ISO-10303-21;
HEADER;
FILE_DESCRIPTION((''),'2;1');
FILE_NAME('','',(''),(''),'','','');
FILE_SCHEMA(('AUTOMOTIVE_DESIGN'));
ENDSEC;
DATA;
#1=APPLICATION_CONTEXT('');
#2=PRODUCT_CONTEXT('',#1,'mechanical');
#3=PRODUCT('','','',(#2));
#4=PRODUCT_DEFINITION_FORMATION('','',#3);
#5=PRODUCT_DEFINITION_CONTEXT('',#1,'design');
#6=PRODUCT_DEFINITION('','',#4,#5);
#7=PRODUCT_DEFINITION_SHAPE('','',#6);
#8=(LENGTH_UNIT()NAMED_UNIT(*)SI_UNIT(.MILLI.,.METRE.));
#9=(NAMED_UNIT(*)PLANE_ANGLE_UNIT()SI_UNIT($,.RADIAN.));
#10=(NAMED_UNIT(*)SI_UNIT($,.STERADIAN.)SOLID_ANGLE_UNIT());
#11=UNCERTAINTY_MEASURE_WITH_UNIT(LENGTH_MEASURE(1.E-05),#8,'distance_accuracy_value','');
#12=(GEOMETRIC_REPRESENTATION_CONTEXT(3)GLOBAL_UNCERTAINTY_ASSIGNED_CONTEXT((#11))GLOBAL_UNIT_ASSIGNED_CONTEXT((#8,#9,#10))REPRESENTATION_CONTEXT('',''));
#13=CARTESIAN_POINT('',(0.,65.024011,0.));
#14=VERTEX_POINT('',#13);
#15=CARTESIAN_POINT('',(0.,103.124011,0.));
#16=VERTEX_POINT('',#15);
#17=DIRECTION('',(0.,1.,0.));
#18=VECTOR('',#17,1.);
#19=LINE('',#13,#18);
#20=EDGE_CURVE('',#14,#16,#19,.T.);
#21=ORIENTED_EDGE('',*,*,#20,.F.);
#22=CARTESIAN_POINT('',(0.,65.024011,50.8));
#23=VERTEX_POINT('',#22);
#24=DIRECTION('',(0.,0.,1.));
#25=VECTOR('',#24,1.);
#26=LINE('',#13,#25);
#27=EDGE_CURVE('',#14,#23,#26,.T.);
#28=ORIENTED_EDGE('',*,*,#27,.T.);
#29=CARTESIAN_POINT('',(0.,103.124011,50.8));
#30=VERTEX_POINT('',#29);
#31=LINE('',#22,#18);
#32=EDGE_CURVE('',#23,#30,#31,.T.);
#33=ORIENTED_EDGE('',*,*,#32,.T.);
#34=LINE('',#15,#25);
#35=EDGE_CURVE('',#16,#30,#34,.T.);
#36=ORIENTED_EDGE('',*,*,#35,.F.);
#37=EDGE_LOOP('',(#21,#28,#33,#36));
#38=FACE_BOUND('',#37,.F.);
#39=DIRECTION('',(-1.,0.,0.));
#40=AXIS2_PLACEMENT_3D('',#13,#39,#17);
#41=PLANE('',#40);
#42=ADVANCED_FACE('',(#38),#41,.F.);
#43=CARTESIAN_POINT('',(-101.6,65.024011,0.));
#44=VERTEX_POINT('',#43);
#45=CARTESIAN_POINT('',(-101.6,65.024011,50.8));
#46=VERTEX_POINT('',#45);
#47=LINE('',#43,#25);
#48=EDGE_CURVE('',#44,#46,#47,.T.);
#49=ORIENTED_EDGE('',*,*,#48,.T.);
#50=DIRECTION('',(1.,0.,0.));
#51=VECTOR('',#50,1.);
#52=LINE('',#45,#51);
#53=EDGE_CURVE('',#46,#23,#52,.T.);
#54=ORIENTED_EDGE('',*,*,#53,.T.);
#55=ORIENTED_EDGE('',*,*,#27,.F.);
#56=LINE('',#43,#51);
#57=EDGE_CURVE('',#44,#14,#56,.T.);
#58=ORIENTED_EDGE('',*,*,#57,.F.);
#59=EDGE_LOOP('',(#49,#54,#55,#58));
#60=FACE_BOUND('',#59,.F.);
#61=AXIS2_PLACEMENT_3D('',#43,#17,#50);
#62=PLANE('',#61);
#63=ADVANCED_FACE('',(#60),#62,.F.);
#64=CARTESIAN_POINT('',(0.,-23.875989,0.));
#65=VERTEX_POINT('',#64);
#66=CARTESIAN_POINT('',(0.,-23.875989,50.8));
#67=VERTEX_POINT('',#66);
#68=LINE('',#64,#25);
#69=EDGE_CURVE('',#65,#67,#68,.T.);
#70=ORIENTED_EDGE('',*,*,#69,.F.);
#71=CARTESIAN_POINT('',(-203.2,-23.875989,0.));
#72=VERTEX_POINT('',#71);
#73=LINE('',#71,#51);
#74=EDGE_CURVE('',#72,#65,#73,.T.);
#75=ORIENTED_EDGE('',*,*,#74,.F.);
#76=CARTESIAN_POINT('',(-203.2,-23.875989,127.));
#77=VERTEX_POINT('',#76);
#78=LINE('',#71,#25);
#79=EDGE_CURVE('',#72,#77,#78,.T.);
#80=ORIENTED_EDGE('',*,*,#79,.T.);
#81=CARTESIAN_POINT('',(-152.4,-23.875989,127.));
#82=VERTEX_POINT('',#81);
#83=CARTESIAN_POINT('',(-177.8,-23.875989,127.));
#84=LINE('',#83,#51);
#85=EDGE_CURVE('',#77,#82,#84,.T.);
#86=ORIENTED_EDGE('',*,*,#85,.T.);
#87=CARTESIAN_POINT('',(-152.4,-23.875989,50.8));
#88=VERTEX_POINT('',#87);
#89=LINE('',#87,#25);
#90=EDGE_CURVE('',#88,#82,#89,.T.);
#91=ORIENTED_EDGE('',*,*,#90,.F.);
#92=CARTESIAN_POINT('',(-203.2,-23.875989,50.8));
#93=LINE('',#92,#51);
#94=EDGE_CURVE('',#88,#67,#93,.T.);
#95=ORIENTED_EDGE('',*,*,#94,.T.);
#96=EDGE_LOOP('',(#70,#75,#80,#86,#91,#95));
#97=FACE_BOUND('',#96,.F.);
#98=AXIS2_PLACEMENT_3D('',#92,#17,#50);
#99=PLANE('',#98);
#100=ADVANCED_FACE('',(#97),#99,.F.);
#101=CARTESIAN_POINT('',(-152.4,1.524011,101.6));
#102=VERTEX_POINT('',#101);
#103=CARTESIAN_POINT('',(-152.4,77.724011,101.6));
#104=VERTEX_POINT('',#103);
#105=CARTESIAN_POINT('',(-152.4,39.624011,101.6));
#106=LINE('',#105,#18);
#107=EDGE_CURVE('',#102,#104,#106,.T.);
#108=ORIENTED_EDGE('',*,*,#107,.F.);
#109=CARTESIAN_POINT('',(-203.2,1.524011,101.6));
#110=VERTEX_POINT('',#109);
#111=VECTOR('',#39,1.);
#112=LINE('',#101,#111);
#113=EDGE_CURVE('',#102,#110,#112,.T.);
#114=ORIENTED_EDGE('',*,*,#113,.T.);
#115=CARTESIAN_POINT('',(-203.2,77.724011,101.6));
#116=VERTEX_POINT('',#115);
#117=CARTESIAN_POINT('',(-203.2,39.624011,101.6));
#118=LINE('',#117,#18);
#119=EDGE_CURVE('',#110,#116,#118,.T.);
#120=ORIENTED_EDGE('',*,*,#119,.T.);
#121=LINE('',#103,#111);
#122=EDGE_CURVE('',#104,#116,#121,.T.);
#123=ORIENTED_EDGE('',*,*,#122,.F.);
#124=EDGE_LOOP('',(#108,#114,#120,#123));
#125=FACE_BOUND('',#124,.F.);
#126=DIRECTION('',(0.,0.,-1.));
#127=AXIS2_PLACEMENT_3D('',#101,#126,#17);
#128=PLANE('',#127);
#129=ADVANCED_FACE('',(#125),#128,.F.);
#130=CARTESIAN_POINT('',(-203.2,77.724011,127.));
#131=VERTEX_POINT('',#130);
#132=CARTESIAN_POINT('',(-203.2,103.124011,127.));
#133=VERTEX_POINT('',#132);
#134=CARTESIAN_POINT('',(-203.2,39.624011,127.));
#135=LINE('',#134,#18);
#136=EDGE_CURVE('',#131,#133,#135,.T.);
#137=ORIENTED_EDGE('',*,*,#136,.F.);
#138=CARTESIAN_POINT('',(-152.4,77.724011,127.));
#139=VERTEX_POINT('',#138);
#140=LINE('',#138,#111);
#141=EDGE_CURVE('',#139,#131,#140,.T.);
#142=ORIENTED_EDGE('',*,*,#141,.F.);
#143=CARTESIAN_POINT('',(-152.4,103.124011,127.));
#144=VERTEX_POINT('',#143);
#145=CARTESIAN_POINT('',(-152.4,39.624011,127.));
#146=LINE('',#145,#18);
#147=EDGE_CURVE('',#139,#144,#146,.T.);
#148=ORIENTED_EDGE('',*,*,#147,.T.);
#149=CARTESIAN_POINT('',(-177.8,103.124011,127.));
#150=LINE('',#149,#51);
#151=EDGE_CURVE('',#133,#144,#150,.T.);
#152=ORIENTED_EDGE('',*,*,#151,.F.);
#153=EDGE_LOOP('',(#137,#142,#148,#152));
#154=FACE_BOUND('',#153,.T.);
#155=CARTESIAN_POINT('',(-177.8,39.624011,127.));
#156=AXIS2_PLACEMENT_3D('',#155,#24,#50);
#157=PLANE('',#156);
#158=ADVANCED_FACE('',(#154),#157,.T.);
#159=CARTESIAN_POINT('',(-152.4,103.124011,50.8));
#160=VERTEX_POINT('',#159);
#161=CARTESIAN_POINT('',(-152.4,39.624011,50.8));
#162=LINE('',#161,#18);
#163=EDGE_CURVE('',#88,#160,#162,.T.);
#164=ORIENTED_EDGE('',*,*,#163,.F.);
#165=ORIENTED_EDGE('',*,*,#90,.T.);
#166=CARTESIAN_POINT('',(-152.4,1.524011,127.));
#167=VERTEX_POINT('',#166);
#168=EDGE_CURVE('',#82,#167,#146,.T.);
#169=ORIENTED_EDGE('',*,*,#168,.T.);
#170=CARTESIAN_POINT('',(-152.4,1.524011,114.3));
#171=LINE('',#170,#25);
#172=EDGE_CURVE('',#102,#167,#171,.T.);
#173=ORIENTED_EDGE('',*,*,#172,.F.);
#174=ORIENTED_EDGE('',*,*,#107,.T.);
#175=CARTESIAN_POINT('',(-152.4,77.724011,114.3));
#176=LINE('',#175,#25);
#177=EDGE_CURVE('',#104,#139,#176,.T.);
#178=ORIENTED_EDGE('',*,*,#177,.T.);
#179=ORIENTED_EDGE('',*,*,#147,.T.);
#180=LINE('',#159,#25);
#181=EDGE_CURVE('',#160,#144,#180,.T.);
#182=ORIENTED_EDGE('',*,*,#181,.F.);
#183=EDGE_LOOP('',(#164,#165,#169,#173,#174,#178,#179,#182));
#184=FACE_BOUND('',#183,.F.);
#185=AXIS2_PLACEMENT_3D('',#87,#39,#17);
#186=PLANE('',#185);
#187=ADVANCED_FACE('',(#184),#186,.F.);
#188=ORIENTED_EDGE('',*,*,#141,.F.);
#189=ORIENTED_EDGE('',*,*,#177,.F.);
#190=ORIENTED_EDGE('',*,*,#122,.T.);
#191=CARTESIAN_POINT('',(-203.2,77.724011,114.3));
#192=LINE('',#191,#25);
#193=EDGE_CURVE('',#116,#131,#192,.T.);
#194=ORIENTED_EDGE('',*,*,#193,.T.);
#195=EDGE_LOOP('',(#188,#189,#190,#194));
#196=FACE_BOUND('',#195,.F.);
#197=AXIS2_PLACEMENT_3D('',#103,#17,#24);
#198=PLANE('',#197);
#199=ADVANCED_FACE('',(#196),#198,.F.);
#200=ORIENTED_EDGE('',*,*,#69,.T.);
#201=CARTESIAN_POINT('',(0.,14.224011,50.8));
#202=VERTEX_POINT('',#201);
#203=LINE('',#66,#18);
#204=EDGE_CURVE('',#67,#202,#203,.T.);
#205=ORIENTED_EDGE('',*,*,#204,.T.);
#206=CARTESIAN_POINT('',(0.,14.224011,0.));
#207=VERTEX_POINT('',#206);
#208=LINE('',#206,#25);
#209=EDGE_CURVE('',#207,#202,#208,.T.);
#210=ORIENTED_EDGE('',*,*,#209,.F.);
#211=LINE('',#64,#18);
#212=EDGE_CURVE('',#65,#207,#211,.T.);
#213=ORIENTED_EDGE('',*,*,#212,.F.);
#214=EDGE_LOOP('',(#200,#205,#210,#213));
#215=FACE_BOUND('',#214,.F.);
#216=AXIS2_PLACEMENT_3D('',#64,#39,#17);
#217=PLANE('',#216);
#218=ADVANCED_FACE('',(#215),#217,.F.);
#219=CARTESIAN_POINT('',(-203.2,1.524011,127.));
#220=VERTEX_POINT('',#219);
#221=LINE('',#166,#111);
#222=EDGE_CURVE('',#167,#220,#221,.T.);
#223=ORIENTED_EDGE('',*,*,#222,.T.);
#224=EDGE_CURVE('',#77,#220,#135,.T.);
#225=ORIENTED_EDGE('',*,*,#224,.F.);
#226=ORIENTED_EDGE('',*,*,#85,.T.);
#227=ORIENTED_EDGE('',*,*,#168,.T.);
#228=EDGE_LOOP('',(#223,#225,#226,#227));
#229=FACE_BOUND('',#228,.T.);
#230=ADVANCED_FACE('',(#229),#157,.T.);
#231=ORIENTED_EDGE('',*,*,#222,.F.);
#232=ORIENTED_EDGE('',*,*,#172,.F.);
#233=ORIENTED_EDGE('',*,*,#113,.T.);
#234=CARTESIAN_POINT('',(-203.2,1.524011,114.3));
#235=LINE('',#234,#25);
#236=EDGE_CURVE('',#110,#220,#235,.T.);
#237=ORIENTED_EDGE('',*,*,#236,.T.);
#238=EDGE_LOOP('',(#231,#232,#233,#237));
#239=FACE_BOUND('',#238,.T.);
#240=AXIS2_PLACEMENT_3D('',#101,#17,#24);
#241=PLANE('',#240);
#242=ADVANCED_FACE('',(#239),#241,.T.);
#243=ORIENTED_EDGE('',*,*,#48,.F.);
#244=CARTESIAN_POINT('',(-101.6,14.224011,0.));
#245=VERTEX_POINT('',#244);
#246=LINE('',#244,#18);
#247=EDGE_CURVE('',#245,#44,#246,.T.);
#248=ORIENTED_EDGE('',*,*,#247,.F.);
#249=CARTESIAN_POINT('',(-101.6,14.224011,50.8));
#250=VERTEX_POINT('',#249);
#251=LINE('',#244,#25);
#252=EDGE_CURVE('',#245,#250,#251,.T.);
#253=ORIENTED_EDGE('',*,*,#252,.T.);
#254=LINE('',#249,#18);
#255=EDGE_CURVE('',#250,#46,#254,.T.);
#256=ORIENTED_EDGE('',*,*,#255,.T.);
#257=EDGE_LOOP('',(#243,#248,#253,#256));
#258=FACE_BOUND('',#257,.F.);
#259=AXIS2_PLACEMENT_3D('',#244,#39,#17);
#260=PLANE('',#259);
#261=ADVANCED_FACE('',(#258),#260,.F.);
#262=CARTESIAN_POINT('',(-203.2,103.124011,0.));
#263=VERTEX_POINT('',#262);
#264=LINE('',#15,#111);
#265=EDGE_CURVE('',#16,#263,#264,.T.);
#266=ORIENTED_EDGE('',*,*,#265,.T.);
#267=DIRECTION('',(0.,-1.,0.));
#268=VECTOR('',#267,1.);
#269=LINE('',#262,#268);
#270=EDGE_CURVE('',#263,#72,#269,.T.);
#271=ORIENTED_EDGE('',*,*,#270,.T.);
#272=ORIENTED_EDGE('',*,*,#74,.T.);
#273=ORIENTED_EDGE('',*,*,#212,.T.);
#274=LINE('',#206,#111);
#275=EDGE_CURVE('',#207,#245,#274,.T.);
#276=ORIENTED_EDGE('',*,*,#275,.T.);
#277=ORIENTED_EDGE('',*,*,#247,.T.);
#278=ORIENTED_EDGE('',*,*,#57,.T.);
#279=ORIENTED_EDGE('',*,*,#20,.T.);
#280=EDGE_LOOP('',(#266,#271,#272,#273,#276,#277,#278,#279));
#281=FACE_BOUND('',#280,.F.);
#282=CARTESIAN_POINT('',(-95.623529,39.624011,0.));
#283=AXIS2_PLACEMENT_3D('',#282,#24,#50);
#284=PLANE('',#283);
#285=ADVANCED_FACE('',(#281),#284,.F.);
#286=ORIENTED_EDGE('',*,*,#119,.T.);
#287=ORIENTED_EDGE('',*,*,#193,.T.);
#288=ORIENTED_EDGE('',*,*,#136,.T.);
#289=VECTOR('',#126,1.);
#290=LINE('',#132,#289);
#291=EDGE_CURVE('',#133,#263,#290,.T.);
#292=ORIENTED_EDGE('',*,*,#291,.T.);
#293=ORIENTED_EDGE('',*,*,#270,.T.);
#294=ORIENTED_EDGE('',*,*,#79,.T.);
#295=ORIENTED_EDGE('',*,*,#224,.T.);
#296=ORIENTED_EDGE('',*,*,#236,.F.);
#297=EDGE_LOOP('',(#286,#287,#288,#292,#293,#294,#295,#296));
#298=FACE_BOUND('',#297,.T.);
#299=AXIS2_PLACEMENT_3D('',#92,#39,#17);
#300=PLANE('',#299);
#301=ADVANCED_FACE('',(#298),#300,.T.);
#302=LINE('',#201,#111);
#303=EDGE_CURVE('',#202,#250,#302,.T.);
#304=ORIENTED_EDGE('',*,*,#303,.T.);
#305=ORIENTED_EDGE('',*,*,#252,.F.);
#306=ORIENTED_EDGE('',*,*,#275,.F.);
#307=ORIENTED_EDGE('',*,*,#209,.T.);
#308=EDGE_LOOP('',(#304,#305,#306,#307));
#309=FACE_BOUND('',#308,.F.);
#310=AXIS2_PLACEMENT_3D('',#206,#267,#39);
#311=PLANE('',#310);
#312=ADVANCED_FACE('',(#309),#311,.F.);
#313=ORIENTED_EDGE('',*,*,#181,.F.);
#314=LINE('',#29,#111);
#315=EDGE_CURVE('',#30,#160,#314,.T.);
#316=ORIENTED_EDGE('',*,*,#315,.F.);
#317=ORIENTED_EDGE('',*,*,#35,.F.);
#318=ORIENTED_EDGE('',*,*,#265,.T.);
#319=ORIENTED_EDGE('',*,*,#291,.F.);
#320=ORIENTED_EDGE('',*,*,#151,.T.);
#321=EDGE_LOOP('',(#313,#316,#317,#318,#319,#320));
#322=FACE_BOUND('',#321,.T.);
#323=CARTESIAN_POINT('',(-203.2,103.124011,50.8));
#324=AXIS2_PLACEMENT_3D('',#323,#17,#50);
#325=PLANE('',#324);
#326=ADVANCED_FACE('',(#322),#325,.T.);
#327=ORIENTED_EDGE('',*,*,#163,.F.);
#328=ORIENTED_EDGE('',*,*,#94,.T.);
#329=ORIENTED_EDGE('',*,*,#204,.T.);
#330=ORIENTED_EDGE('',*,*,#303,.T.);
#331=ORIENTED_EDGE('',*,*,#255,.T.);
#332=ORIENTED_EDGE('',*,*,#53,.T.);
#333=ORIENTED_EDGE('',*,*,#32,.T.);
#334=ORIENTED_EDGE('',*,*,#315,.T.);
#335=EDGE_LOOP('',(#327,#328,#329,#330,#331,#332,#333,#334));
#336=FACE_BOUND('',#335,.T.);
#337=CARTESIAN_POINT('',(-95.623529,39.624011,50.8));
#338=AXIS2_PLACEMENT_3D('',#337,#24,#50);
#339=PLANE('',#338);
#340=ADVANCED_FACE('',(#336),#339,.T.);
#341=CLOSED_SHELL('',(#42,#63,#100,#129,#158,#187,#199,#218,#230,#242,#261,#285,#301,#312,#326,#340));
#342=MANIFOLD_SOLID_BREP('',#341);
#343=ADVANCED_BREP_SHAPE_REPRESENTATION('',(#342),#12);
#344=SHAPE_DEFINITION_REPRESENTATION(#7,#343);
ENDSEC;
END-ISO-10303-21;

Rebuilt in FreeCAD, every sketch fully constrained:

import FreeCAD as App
import Part
import Sketcher
Q = App.Units.Quantity


def add_polygon(sketch, points):
    """Adds a closed chain of lines whose ends are joined by coincident constraints."""
    first, n = sketch.GeometryCount, len(points)
    for a, b in zip(points, points[1:] + points[:1]):
        sketch.addGeometry(Part.LineSegment(App.Vector(*a, 0), App.Vector(*b, 0)), False)
    for i in range(n):
        sketch.addConstraint(Sketcher.Constraint("Coincident", first + i, 2, first + (i + 1) % n, 1))

doc = App.newDocument("Part")
body = doc.addObject("PartDesign::Body", "Body")

sketch1 = body.newObject("Sketcher::SketchObject", "Sketch")
sketch1.AttachmentSupport = (doc.getObject("XY_Plane"), [""])
sketch1.MapMode = "FlatFace"
add_polygon(sketch1, [(0, 103.124011), (-203.2, 103.124011), (-203.2, -23.875989), (0, -23.875989), (0, 14.224011), (-101.6, 14.224011), (-101.6, 65.024011), (0, 65.024011)])
sketch1.addConstraint([
    Sketcher.Constraint("Horizontal", 0),
    Sketcher.Constraint("Vertical", 1),
    Sketcher.Constraint("Horizontal", 2),
    Sketcher.Constraint("Vertical", 3),
    Sketcher.Constraint("Horizontal", 4),
    Sketcher.Constraint("Vertical", 5),
    Sketcher.Constraint("Horizontal", 6),
    Sketcher.Constraint("Vertical", 7),
    Sketcher.Constraint("PointOnObject", 2, 2, -2),
    Sketcher.Constraint("PointOnObject", 6, 2, -2),
    Sketcher.Constraint("Equal", 3, 7),
    Sketcher.Constraint("DistanceX", 0, 2, 0, 1, Q("8 in")),
    Sketcher.Constraint("DistanceX", 4, 2, 4, 1, Q("4 in")),
    Sketcher.Constraint("DistanceY", 1, 2, 1, 1, Q("5 in")),
    Sketcher.Constraint("DistanceY", 5, 1, 5, 2, Q("2 in")),
    Sketcher.Constraint("DistanceY", -1, 1, 0, 2, 103.124011),
])
pad1 = body.newObject("PartDesign::Pad", "Pad")
pad1.Profile = sketch1
pad1.Length = Q("2 in")

sketch2 = body.newObject("Sketcher::SketchObject", "Sketch001")
sketch2.AttachmentSupport = (doc.getObject("XY_Plane"), [""])
sketch2.MapMode = "FlatFace"
sketch2.AttachmentOffset = App.Placement(App.Vector(0, 0, 2 * 25.4), App.Rotation())
add_polygon(sketch2, [(-203.2, 103.124011), (-203.2, -23.875989), (-152.4, -23.875989), (-152.4, 103.124011)])
sketch2.addConstraint([
    Sketcher.Constraint("Vertical", 0),
    Sketcher.Constraint("Horizontal", 1),
    Sketcher.Constraint("Vertical", 2),
    Sketcher.Constraint("Horizontal", 3),
    Sketcher.Constraint("DistanceX", 1, 1, 1, 2, Q("2 in")),
    Sketcher.Constraint("DistanceY", 0, 2, 0, 1, Q("5 in")),
    Sketcher.Constraint("DistanceX", 0, 2, -1, 1, Q("8 in")),
    Sketcher.Constraint("DistanceY", 0, 2, -1, 1, 23.875989),
])
pad2 = body.newObject("PartDesign::Pad", "Pad001")
pad2.Profile = sketch2
pad2.Length = Q("3 in")

sketch3 = body.newObject("Sketcher::SketchObject", "Sketch002")
sketch3.AttachmentSupport = (doc.getObject("YZ_Plane"), [""])
sketch3.MapMode = "FlatFace"
sketch3.AttachmentOffset = App.Placement(App.Vector(0, 0, -6 * 25.4), App.Rotation())
add_polygon(sketch3, [(1.524011, 127), (1.524011, 101.6), (77.724011, 101.6), (77.724011, 127)])
sketch3.addConstraint([
    Sketcher.Constraint("Vertical", 0),
    Sketcher.Constraint("Horizontal", 1),
    Sketcher.Constraint("Vertical", 2),
    Sketcher.Constraint("Horizontal", 3),
    Sketcher.Constraint("DistanceX", 1, 1, 1, 2, Q("3 in")),
    Sketcher.Constraint("DistanceY", 0, 2, 0, 1, Q("1 in")),
    Sketcher.Constraint("DistanceY", -1, 1, 0, 2, Q("4 in")),
    Sketcher.Constraint("DistanceX", -1, 1, 0, 2, 1.524011),
])
pocket1 = body.newObject("PartDesign::Pocket", "Pocket")
pocket1.Profile = sketch3
pocket1.Length = Q("2 in")

doc.recompute()
